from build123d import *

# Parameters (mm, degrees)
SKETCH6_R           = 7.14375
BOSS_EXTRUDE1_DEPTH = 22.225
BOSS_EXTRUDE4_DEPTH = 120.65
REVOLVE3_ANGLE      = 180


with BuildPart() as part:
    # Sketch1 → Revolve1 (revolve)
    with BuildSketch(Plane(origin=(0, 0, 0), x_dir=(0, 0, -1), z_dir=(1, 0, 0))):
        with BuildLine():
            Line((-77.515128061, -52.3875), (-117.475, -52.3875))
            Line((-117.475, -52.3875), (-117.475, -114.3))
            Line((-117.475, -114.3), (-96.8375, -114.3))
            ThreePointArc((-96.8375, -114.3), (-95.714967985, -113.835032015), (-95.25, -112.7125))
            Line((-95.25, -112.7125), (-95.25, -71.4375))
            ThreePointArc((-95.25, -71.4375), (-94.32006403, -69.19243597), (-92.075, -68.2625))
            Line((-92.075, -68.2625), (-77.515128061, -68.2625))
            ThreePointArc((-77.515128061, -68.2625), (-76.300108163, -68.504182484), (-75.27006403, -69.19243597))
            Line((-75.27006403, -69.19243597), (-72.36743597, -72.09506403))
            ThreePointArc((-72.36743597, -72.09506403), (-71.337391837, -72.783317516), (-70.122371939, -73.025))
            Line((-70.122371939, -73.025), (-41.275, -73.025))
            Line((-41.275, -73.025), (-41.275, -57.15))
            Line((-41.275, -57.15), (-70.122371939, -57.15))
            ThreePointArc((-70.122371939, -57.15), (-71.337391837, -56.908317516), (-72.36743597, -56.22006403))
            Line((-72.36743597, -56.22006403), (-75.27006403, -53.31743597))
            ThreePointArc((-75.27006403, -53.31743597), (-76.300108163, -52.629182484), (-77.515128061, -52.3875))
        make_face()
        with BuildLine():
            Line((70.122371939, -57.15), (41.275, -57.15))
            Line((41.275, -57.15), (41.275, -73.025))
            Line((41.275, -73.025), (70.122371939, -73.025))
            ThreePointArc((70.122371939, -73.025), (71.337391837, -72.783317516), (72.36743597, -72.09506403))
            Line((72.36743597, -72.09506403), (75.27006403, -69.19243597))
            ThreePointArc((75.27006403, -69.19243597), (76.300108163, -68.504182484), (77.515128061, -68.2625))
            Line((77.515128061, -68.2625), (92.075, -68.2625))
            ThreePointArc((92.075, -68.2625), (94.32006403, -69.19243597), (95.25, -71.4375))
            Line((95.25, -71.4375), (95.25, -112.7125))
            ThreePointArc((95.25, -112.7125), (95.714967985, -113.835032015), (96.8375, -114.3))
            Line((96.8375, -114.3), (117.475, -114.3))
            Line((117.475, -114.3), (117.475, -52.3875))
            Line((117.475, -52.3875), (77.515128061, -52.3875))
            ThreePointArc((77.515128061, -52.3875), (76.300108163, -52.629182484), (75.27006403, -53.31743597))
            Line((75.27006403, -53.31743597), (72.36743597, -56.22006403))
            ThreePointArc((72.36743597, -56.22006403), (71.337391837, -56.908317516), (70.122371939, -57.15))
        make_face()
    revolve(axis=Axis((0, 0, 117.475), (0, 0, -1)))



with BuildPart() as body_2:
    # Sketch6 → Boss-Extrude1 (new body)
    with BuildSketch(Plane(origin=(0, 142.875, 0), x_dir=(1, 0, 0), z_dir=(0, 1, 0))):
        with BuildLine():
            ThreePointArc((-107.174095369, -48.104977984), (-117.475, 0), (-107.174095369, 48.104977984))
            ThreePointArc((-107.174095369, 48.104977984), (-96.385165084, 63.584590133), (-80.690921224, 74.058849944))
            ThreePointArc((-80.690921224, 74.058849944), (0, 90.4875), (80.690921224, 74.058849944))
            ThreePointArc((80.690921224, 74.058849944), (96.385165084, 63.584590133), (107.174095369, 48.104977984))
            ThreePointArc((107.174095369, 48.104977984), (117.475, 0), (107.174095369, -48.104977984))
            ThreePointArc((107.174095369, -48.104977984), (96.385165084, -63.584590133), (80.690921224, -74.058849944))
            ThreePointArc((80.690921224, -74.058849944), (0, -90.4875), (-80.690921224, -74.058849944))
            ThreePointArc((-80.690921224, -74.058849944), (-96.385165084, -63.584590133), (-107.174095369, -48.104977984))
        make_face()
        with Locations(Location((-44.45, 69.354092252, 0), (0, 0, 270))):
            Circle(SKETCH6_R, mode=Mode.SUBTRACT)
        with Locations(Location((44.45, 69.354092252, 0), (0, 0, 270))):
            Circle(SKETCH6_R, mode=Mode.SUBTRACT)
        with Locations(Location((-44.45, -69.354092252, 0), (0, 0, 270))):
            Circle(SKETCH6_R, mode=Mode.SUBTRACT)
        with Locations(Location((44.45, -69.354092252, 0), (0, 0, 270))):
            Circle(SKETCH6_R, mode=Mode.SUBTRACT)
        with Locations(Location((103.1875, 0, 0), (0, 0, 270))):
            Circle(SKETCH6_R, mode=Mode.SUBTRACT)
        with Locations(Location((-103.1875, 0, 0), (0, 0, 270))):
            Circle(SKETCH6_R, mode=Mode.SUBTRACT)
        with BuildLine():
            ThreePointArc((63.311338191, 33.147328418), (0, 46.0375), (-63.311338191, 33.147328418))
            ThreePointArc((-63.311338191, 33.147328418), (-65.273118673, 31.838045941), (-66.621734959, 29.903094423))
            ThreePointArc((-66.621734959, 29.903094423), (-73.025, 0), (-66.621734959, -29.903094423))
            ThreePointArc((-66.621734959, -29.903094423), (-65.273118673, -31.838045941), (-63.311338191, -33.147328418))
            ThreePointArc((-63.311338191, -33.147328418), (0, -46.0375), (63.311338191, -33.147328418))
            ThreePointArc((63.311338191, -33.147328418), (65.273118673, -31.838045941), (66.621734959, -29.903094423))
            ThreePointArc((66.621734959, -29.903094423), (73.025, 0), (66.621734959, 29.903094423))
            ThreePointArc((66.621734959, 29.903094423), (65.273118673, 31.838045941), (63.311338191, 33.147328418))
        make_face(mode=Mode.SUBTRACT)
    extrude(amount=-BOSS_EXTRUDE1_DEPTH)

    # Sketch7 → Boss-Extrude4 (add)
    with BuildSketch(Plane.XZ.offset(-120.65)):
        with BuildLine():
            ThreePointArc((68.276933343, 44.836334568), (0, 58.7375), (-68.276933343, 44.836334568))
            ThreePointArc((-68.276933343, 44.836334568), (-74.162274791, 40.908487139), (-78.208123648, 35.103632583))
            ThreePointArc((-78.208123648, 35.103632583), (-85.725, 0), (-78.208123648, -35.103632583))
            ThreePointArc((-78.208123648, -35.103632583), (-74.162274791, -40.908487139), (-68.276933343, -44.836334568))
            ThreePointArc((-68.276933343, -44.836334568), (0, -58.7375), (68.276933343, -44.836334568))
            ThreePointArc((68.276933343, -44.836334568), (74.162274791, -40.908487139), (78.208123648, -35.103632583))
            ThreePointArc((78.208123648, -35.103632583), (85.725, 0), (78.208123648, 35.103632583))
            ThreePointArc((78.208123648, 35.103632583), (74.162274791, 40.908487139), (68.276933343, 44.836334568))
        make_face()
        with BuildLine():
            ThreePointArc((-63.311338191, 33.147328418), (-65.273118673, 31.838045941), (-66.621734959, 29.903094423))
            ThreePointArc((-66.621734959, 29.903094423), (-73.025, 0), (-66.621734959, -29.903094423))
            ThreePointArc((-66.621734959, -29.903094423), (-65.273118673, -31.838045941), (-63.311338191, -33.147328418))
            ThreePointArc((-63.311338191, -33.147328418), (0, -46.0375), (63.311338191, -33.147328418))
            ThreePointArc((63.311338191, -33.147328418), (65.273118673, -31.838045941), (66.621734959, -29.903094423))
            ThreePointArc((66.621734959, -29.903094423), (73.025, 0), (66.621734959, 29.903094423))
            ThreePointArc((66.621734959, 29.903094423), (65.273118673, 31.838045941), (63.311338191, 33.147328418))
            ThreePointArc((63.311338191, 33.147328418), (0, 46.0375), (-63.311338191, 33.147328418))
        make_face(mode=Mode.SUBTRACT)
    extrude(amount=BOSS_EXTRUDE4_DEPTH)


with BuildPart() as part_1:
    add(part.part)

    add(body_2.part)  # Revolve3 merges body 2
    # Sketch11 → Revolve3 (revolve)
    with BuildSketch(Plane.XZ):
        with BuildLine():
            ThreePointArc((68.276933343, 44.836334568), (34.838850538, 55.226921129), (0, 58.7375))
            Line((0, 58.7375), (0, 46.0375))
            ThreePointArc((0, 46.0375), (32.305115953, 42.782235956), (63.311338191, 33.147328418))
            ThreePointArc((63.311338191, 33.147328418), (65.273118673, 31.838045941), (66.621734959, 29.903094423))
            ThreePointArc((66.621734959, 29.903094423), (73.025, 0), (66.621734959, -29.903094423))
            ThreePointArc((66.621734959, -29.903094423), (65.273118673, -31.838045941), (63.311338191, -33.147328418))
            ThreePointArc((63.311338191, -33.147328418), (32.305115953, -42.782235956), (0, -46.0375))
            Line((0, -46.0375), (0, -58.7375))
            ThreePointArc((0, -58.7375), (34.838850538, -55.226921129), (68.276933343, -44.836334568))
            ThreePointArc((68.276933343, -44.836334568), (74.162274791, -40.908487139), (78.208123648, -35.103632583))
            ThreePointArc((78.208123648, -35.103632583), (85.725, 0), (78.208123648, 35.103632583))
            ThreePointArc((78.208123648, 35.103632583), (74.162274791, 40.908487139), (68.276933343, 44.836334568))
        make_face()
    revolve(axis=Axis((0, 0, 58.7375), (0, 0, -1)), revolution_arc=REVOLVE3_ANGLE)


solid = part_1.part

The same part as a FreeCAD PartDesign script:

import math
import FreeCAD as App
import Part
import Sketcher
from FreeCAD import Vector
Q = App.Units.Quantity

doc = App.newDocument("Part")
params = doc.addObject("Spreadsheet::Sheet", "Params")
for row, (alias, value) in enumerate([
    ("sketch1_radius", "0.0625 in"),
    ("sketch1_radius2", "0.125 in"),
    ("sketch1_width", "2.4375 in"),
    ("revolution_angle", "360 deg"),
    ("sketch2_radius", "2 in"),
    ("sketch2_radius2", "0.25 in"),
    ("sketch2_diameter", "0.5625 in"),
    ("sketch2_radius3", "4.625 in"),
    ("sketch2_radius4", "8.125 in"),
    ("pad1_length", "0.875 in"),
    ("sketch3_radius", "0.75 in"),
    ("sketch3_radius2", "0.25 in"),
    ("sketch3_radius3", "6.875 in"),
    ("sketch3_radius4", "3.375 in"),
    ("pad2_length", "4.75 in"),
    ("sketch4_radius", "0.25 in"),
    ("sketch4_radius2", "0.75 in"),
    ("sketch4_radius3", "6.875 in"),
    ("sketch4_radius4", "2.875 in"),
    ("revolution2_angle", "180 deg"),
], start=1):
    params.set(f"A{row}", alias)
    params.set(f"B{row}", "=" + value)
    params.setAlias(f"B{row}", alias)

body = doc.addObject("PartDesign::Body", "Body")
body.AllowCompound = True

# Sketch on YZ plane
sketch1 = body.newObject("Sketcher::SketchObject", "Sketch")
sketch1.AttachmentSupport = (doc.getObject("YZ_Plane"), [""])
sketch1.MapMode = "FlatFace"
sketch1.addGeometry([
    Part.LineSegment(Vector(-52.3875, 77.515128, 0), Vector(-52.3875, 117.475, 0)),  # 0
    Part.LineSegment(Vector(-52.3875, 117.475, 0), Vector(-114.3, 117.475, 0)),  # 1
    Part.LineSegment(Vector(-114.3, 117.475, 0), Vector(-114.3, 96.8375, 0)),  # 2
    Part.ArcOfCircle(Part.Circle(Vector(-112.7125, 96.8375, 0), Vector(0, 0, 1), 1.5875), math.radians(180), math.radians(270)),  # 3
    Part.LineSegment(Vector(-112.7125, 95.25, 0), Vector(-71.4375, 95.25, 0)),  # 4
    Part.ArcOfCircle(Part.Circle(Vector(-71.4375, 92.075, 0), Vector(0, 0, 1), 3.175), math.radians(0), math.radians(90)),  # 5
    Part.LineSegment(Vector(-68.2625, 92.075, 0), Vector(-68.2625, 77.515128, 0)),  # 6
    Part.ArcOfCircle(Part.Circle(Vector(-71.4375, 77.515128, 0), Vector(0, 0, 1), 3.175), math.radians(-45), math.radians(0)),  # 7
    Part.LineSegment(Vector(-69.192436, 75.270064, 0), Vector(-72.095064, 72.367436, 0)),  # 8
    Part.ArcOfCircle(Part.Circle(Vector(-69.85, 70.122372, 0), Vector(0, 0, 1), 3.175), math.radians(135), math.radians(180)),  # 9
    Part.LineSegment(Vector(-73.025, 70.122372, 0), Vector(-73.025, 41.275, 0)),  # 10
    Part.LineSegment(Vector(-73.025, 41.275, 0), Vector(-57.15, 41.275, 0)),  # 11
    Part.LineSegment(Vector(-57.15, 41.275, 0), Vector(-57.15, 70.122372, 0)),  # 12
    Part.ArcOfCircle(Part.Circle(Vector(-53.975, 70.122372, 0), Vector(0, 0, 1), 3.175), math.radians(135), math.radians(180)),  # 13
    Part.LineSegment(Vector(-56.220064, 72.367436, 0), Vector(-53.317436, 75.270064, 0)),  # 14
    Part.ArcOfCircle(Part.Circle(Vector(-55.5625, 77.515128, 0), Vector(0, 0, 1), 3.175), math.radians(-45), math.radians(0)),  # 15
    Part.LineSegment(Vector(-57.15, -70.122372, 0), Vector(-57.15, -41.275, 0)),  # 16
    Part.LineSegment(Vector(-57.15, -41.275, 0), Vector(-73.025, -41.275, 0)),  # 17
    Part.LineSegment(Vector(-73.025, -41.275, 0), Vector(-73.025, -70.122372, 0)),  # 18
    Part.ArcOfCircle(Part.Circle(Vector(-69.85, -70.122372, 0), Vector(0, 0, 1), 3.175), math.radians(180), math.radians(225)),  # 19
    Part.LineSegment(Vector(-72.095064, -72.367436, 0), Vector(-69.192436, -75.270064, 0)),  # 20
    Part.ArcOfCircle(Part.Circle(Vector(-71.4375, -77.515128, 0), Vector(0, 0, 1), 3.175), math.radians(0), math.radians(45)),  # 21
    Part.LineSegment(Vector(-68.2625, -77.515128, 0), Vector(-68.2625, -92.075, 0)),  # 22
    Part.ArcOfCircle(Part.Circle(Vector(-71.4375, -92.075, 0), Vector(0, 0, 1), 3.175), math.radians(-90), math.radians(0)),  # 23
    Part.LineSegment(Vector(-71.4375, -95.25, 0), Vector(-112.7125, -95.25, 0)),  # 24
    Part.ArcOfCircle(Part.Circle(Vector(-112.7125, -96.8375, 0), Vector(0, 0, 1), 1.5875), math.radians(90), math.radians(180)),  # 25
    Part.LineSegment(Vector(-114.3, -96.8375, 0), Vector(-114.3, -117.475, 0)),  # 26
    Part.LineSegment(Vector(-114.3, -117.475, 0), Vector(-52.3875, -117.475, 0)),  # 27
    Part.LineSegment(Vector(-52.3875, -117.475, 0), Vector(-52.3875, -77.515128, 0)),  # 28
    Part.ArcOfCircle(Part.Circle(Vector(-55.5625, -77.515128, 0), Vector(0, 0, 1), 3.175), math.radians(0), math.radians(45)),  # 29
    Part.LineSegment(Vector(-53.317436, -75.270064, 0), Vector(-56.220064, -72.367436, 0)),  # 30
    Part.ArcOfCircle(Part.Circle(Vector(-53.975, -70.122372, 0), Vector(0, 0, 1), 3.175), math.radians(180), math.radians(225)),  # 31
], False)
sketch1.addConstraint([
    Sketcher.Constraint("Coincident", 0, 2, 1, 1),
    Sketcher.Constraint("Coincident", 1, 2, 2, 1),
    Sketcher.Constraint("Tangent", 2, 2, 3, 1),
    Sketcher.Constraint("Tangent", 3, 2, 4, 1),
    Sketcher.Constraint("Tangent", 4, 2, 5, 2),
    Sketcher.Constraint("Tangent", 5, 1, 6, 1),
    Sketcher.Constraint("Tangent", 6, 2, 7, 2),
    Sketcher.Constraint("Tangent", 7, 1, 8, 1),
    Sketcher.Constraint("Tangent", 8, 2, 9, 1),
    Sketcher.Constraint("Tangent", 9, 2, 10, 1),
    Sketcher.Constraint("Coincident", 10, 2, 11, 1),
    Sketcher.Constraint("Coincident", 11, 2, 12, 1),
    Sketcher.Constraint("Tangent", 12, 2, 13, 2),
    Sketcher.Constraint("Tangent", 13, 1, 14, 1),
    Sketcher.Constraint("Tangent", 14, 2, 15, 1),
    Sketcher.Constraint("Tangent", 15, 2, 0, 1),
    Sketcher.Constraint("Coincident", 16, 2, 17, 1),
    Sketcher.Constraint("Coincident", 17, 2, 18, 1),
    Sketcher.Constraint("Tangent", 18, 2, 19, 1),
    Sketcher.Constraint("Tangent", 19, 2, 20, 1),
    Sketcher.Constraint("Tangent", 20, 2, 21, 2),
    Sketcher.Constraint("Tangent", 21, 1, 22, 1),
    Sketcher.Constraint("Tangent", 22, 2, 23, 2),
    Sketcher.Constraint("Tangent", 23, 1, 24, 1),
    Sketcher.Constraint("Tangent", 24, 2, 25, 1),
    Sketcher.Constraint("Tangent", 25, 2, 26, 1),
    Sketcher.Constraint("Coincident", 26, 2, 27, 1),
    Sketcher.Constraint("Coincident", 27, 2, 28, 1),
    Sketcher.Constraint("Tangent", 28, 2, 29, 1),
    Sketcher.Constraint("Tangent", 29, 2, 30, 1),
    Sketcher.Constraint("Tangent", 30, 2, 31, 2),
    Sketcher.Constraint("Tangent", 31, 1, 16, 1),
    Sketcher.Constraint("Vertical", 0),
    Sketcher.Constraint("Horizontal", 1),
    Sketcher.Constraint("Vertical", 2),
    Sketcher.Constraint("Horizontal", 4),
    Sketcher.Constraint("Vertical", 6),
    Sketcher.Constraint("Vertical", 10),
    Sketcher.Constraint("Horizontal", 11),
    Sketcher.Constraint("Vertical", 12),
    Sketcher.Constraint("Vertical", 16),
    Sketcher.Constraint("Horizontal", 17),
    Sketcher.Constraint("Vertical", 18),
    Sketcher.Constraint("Vertical", 22),
    Sketcher.Constraint("Horizontal", 24),
    Sketcher.Constraint("Vertical", 26),
    Sketcher.Constraint("Horizontal", 27),
    Sketcher.Constraint("Vertical", 28),
    Sketcher.Constraint("Equal", 5, 7),
    Sketcher.Constraint("Equal", 7, 9),
    Sketcher.Constraint("Equal", 9, 13),
    Sketcher.Constraint("Equal", 13, 15),
    Sketcher.Constraint("Equal", 15, 19),
    Sketcher.Constraint("Equal", 19, 21),
    Sketcher.Constraint("Equal", 21, 23),
    Sketcher.Constraint("Equal", 3, 25),
    Sketcher.Constraint("Equal", 23, 29),
    Sketcher.Constraint("Equal", 29, 31),
    Sketcher.Constraint("Symmetric", 9, 3, 19, 3, -1),
    Sketcher.Constraint("Symmetric", 7, 3, 21, 3, -1),
    Sketcher.Constraint("Symmetric", 3, 3, 25, 3, -1),
    Sketcher.Constraint("Symmetric", 15, 3, 29, 3, -1),
    Sketcher.Constraint("Symmetric", 13, 3, 31, 3, -1),
    Sketcher.Constraint("Parallel", 8, 14),
    Sketcher.Constraint("Perpendicular", 14, 20),
    Sketcher.Constraint("Horizontal", 9, 3, 13, 3),
    Sketcher.Constraint("Horizontal", 7, 3, 15, 3),
    Sketcher.Constraint("Equal", 12, 16),
    Sketcher.Constraint("Equal", 2, 26),
    Sketcher.Constraint("Radius", 3, Q("0.0625 in")),
    Sketcher.Constraint("Radius", 5, Q("0.125 in")),
    Sketcher.Constraint("DistanceY", 5, 3, 0, 2, Q("1 in")),
    Sketcher.Constraint("DistanceY", 23, 3, 16, 2, Q("2 in")),
    Sketcher.Constraint("DistanceX", 1, 2, -1, 1, Q("4.5 in")),
    Sketcher.Constraint("DistanceX", 5, 1, 15, 3, Q("0.5 in")),
    Sketcher.Constraint("DistanceX", 1, 2, 1, 1, Q("2.4375 in")),
    Sketcher.Constraint("DistanceX", 9, 3, -1, 1, Q("2.75 in")),
    Sketcher.Constraint("DistanceY", -1, 1, 3, 2, Q("3.75 in")),
    Sketcher.Constraint("DistanceY", 19, 3, 7, 3, Q("5.8125 in")),
])
sketch1.setExpression("Constraints[69]", "Params.sketch1_radius")
sketch1.setExpression("Constraints[70]", "Params.sketch1_radius2")
sketch1.setExpression("Constraints[75]", "Params.sketch1_width")
revolution = body.newObject("PartDesign::Revolution", "Revolution")
revolution.Profile = sketch1
revolution.ReferenceAxis = (sketch1, ["V_Axis"])
revolution.setExpression("Angle", "Params.revolution_angle")
body2 = doc.addObject("PartDesign::Body", "Body001")

# Sketch on XZ plane
sketch2 = body2.newObject("Sketcher::SketchObject", "Sketch001")
sketch2.AttachmentSupport = (doc.getObject("XZ_Plane001"), [""])
sketch2.MapMode = "FlatFace"
sketch2.AttachmentOffset = App.Placement(Vector(0, 0, -5.625 * 25.4), App.Rotation())
sketch2.addGeometry([
    Part.ArcOfCircle(Part.Circle(Vector(0, 0, 0), Vector(0, 0, 1), 117.475), math.radians(155.827124), math.radians(204.172876)),  # 0
    Part.ArcOfCircle(Part.Circle(Vector(-60.828541, 27.302825, 0), Vector(0, 0, 1), 50.8), math.radians(113.016223), math.radians(155.827124)),  # 1
    Part.ArcOfCircle(Part.Circle(Vector(0, -115.8875, 0), Vector(0, 0, 1), 206.375), math.radians(66.983777), math.radians(113.016223)),  # 2
    Part.ArcOfCircle(Part.Circle(Vector(60.828541, 27.302825, 0), Vector(0, 0, 1), 50.8), math.radians(24.172876), math.radians(66.983777)),  # 3
    Part.ArcOfCircle(Part.Circle(Vector(0, 0, 0), Vector(0, 0, 1), 117.475), math.radians(-24.172876), math.radians(24.172876)),  # 4
    Part.ArcOfCircle(Part.Circle(Vector(60.828541, -27.302825, 0), Vector(0, 0, 1), 50.8), math.radians(-66.983777), math.radians(-24.172876)),  # 5
    Part.ArcOfCircle(Part.Circle(Vector(0, 115.8875, 0), Vector(0, 0, 1), 206.375), math.radians(-113.016223), math.radians(-66.983777)),  # 6
    Part.ArcOfCircle(Part.Circle(Vector(-60.828541, -27.302825, 0), Vector(0, 0, 1), 50.8), math.radians(-155.827124), math.radians(-113.016223)),  # 7
    Part.Circle(Vector(44.45, 69.354092, 0), Vector(0, 0, 1), 7.14375),  # 8
    Part.Circle(Vector(-44.45, 69.354092, 0), Vector(0, 0, 1), 7.14375),  # 9
    Part.Circle(Vector(103.1875, 0, 0), Vector(0, 0, 1), 7.14375),  # 10
    Part.Circle(Vector(44.45, -69.354092, 0), Vector(0, 0, 1), 7.14375),  # 11
    Part.ArcOfCircle(Part.Circle(Vector(60.828541, -27.302825, 0), Vector(0, 0, 1), 6.35), math.radians(-66.983777), math.radians(-24.172876)),  # 12
    Part.ArcOfCircle(Part.Circle(Vector(0, 0, 0), Vector(0, 0, 1), 73.025), math.radians(-24.172876), math.radians(24.172876)),  # 13
    Part.ArcOfCircle(Part.Circle(Vector(60.828541, 27.302825, 0), Vector(0, 0, 1), 6.35), math.radians(24.172876), math.radians(66.983777)),  # 14
    Part.ArcOfCircle(Part.Circle(Vector(0, -115.8875, 0), Vector(0, 0, 1), 161.925), math.radians(66.983777), math.radians(113.016223)),  # 15
    Part.ArcOfCircle(Part.Circle(Vector(-60.828541, 27.302825, 0), Vector(0, 0, 1), 6.35), math.radians(113.016223), math.radians(155.827124)),  # 16
    Part.ArcOfCircle(Part.Circle(Vector(0, 0, 0), Vector(0, 0, 1), 73.025), math.radians(155.827124), math.radians(204.172876)),  # 17
    Part.ArcOfCircle(Part.Circle(Vector(-60.828541, -27.302825, 0), Vector(0, 0, 1), 6.35), math.radians(-155.827124), math.radians(-113.016223)),  # 18
    Part.ArcOfCircle(Part.Circle(Vector(0, 115.8875, 0), Vector(0, 0, 1), 161.925), math.radians(-113.016223), math.radians(-66.983777)),  # 19
    Part.Circle(Vector(-103.1875, 0, 0), Vector(0, 0, 1), 7.14375),  # 20
    Part.Circle(Vector(-44.45, -69.354092, 0), Vector(0, 0, 1), 7.14375),  # 21
], False)
sketch2.addConstraint([
    Sketcher.Constraint("Tangent", 0, 1, 1, 2),
    Sketcher.Constraint("Tangent", 1, 1, 2, 2),
    Sketcher.Constraint("Tangent", 2, 1, 3, 2),
    Sketcher.Constraint("Tangent", 3, 1, 4, 2),
    Sketcher.Constraint("Tangent", 4, 1, 5, 2),
    Sketcher.Constraint("Tangent", 5, 1, 6, 2),
    Sketcher.Constraint("Tangent", 6, 1, 7, 2),
    Sketcher.Constraint("Tangent", 7, 1, 0, 2),
    Sketcher.Constraint("Tangent", 12, 2, 13, 1),
    Sketcher.Constraint("Tangent", 13, 2, 14, 1),
    Sketcher.Constraint("Tangent", 14, 2, 15, 1),
    Sketcher.Constraint("Tangent", 15, 2, 16, 1),
    Sketcher.Constraint("Tangent", 16, 2, 17, 1),
    Sketcher.Constraint("Tangent", 17, 2, 18, 1),
    Sketcher.Constraint("Tangent", 18, 2, 19, 1),
    Sketcher.Constraint("Tangent", 19, 2, 12, 1),
    Sketcher.Constraint("Coincident", 0, 3, -1, 1),
    Sketcher.Constraint("Coincident", 4, 3, -1, 1),
    Sketcher.Constraint("Coincident", 13, 3, -1, 1),
    Sketcher.Constraint("Coincident", 17, 3, -1, 1),
    Sketcher.Constraint("Coincident", 12, 3, 5, 3),
    Sketcher.Constraint("Coincident", 14, 3, 3, 3),
    Sketcher.Constraint("Coincident", 15, 3, 2, 3),
    Sketcher.Constraint("Coincident", 16, 3, 1, 3),
    Sketcher.Constraint("Coincident", 18, 3, 7, 3),
    Sketcher.Constraint("Equal", 1, 3),
    Sketcher.Constraint("Equal", 0, 4),
    Sketcher.Constraint("Equal", 3, 5),
    Sketcher.Constraint("Equal", 2, 6),
    Sketcher.Constraint("Equal", 5, 7),
    Sketcher.Constraint("Equal", 8, 9),
    Sketcher.Constraint("Equal", 9, 10),
    Sketcher.Constraint("Equal", 10, 11),
    Sketcher.Constraint("Equal", 15, 19),
    Sketcher.Constraint("Equal", 11, 20),
    Sketcher.Constraint("Equal", 20, 21),
    Sketcher.Constraint("Symmetric", 2, 3, 6, 3, -1, 1),
    Sketcher.Constraint("Symmetric", 9, 3, 11, 3, -1, 1),
    Sketcher.Constraint("Symmetric", 10, 3, 20, 3, -1, 1),
    Sketcher.Constraint("Symmetric", 8, 3, 21, 3, -1, 1),
    Sketcher.Constraint("Symmetric", 8, 3, 9, 3, -2),
    Sketcher.Constraint("PointOnObject", 2, 3, -2),
    Sketcher.Constraint("PointOnObject", 10, 3, -1),
    Sketcher.Constraint("Radius", 1, Q("2 in")),
    Sketcher.Constraint("Radius", 12, Q("0.25 in")),
    Sketcher.Constraint("Diameter", 8, Q("0.5625 in")),
    Sketcher.Constraint("Radius", 0, Q("4.625 in")),
    Sketcher.Constraint("Radius", 2, Q("8.125 in")),
    Sketcher.Constraint("DistanceX", 9, 3, 8, 3, Q("3.5 in")),
    Sketcher.Constraint("DistanceY", 2, 3, -1, 1, Q("4.5625 in")),
    Sketcher.Constraint("DistanceX", -1, 1, 10, 3, Q("4.0625 in")),
    Sketcher.Constraint("DistanceY", -1, 1, 8, 3, 69.354092),
])
sketch2.setExpression("Constraints[43]", "Params.sketch2_radius")
sketch2.setExpression("Constraints[44]", "Params.sketch2_radius2")
sketch2.setExpression("Constraints[45]", "Params.sketch2_diameter")
sketch2.setExpression("Constraints[46]", "Params.sketch2_radius3")
sketch2.setExpression("Constraints[47]", "Params.sketch2_radius4")
pad1 = body2.newObject("PartDesign::Pad", "Pad")
pad1.Profile = sketch2
pad1.setExpression("Length", "Params.pad1_length")

# Sketch on XZ plane
sketch3 = body2.newObject("Sketcher::SketchObject", "Sketch002")
sketch3.AttachmentSupport = (doc.getObject("XZ_Plane001"), [""])
sketch3.MapMode = "FlatFace"
sketch3.AttachmentOffset = App.Placement(Vector(0, 0, -4.75 * 25.4), App.Rotation())
sketch3.addGeometry([
    Part.ArcOfCircle(Part.Circle(Vector(0, -115.8875, 0), Vector(0, 0, 1), 174.625), math.radians(66.983777), math.radians(113.016223)),  # 0
    Part.ArcOfCircle(Part.Circle(Vector(-60.828541, 27.302825, 0), Vector(0, 0, 1), 19.05), math.radians(113.016223), math.radians(155.827124)),  # 1
    Part.ArcOfCircle(Part.Circle(Vector(0, 0, 0), Vector(0, 0, 1), 85.725), math.radians(155.827124), math.radians(204.172876)),  # 2
    Part.ArcOfCircle(Part.Circle(Vector(-60.828541, -27.302825, 0), Vector(0, 0, 1), 19.05), math.radians(-155.827124), math.radians(-113.016223)),  # 3
    Part.ArcOfCircle(Part.Circle(Vector(0, 115.8875, 0), Vector(0, 0, 1), 174.625), math.radians(-113.016223), math.radians(-66.983777)),  # 4
    Part.ArcOfCircle(Part.Circle(Vector(60.828541, -27.302825, 0), Vector(0, 0, 1), 19.05), math.radians(-66.983777), math.radians(-24.172876)),  # 5
    Part.ArcOfCircle(Part.Circle(Vector(0, 0, 0), Vector(0, 0, 1), 85.725), math.radians(-24.172876), math.radians(24.172876)),  # 6
    Part.ArcOfCircle(Part.Circle(Vector(60.828541, 27.302825, 0), Vector(0, 0, 1), 19.05), math.radians(24.172876), math.radians(66.983777)),  # 7
    Part.ArcOfCircle(Part.Circle(Vector(-60.828541, 27.302825, 0), Vector(0, 0, 1), 6.35), math.radians(113.016223), math.radians(155.827124)),  # 8
    Part.ArcOfCircle(Part.Circle(Vector(0, -115.8875, 0), Vector(0, 0, 1), 161.925), math.radians(66.983777), math.radians(113.016223)),  # 9
    Part.ArcOfCircle(Part.Circle(Vector(60.828541, 27.302825, 0), Vector(0, 0, 1), 6.35), math.radians(24.172876), math.radians(66.983777)),  # 10
    Part.ArcOfCircle(Part.Circle(Vector(0, 0, 0), Vector(0, 0, 1), 73.025), math.radians(-24.172876), math.radians(24.172876)),  # 11
    Part.ArcOfCircle(Part.Circle(Vector(60.828541, -27.302825, 0), Vector(0, 0, 1), 6.35), math.radians(-66.983777), math.radians(-24.172876)),  # 12
    Part.ArcOfCircle(Part.Circle(Vector(0, 115.8875, 0), Vector(0, 0, 1), 161.925), math.radians(-113.016223), math.radians(-66.983777)),  # 13
    Part.ArcOfCircle(Part.Circle(Vector(-60.828541, -27.302825, 0), Vector(0, 0, 1), 6.35), math.radians(-155.827124), math.radians(-113.016223)),  # 14
    Part.ArcOfCircle(Part.Circle(Vector(0, 0, 0), Vector(0, 0, 1), 73.025), math.radians(155.827124), math.radians(204.172876)),  # 15
], False)
sketch3.addConstraint([
    Sketcher.Constraint("Tangent", 0, 2, 1, 1),
    Sketcher.Constraint("Tangent", 1, 2, 2, 1),
    Sketcher.Constraint("Tangent", 2, 2, 3, 1),
    Sketcher.Constraint("Tangent", 3, 2, 4, 1),
    Sketcher.Constraint("Tangent", 4, 2, 5, 1),
    Sketcher.Constraint("Tangent", 5, 2, 6, 1),
    Sketcher.Constraint("Tangent", 6, 2, 7, 1),
    Sketcher.Constraint("Tangent", 7, 2, 0, 1),
    Sketcher.Constraint("Tangent", 8, 1, 9, 2),
    Sketcher.Constraint("Tangent", 9, 1, 10, 2),
    Sketcher.Constraint("Tangent", 10, 1, 11, 2),
    Sketcher.Constraint("Tangent", 11, 1, 12, 2),
    Sketcher.Constraint("Tangent", 12, 1, 13, 2),
    Sketcher.Constraint("Tangent", 13, 1, 14, 2),
    Sketcher.Constraint("Tangent", 14, 1, 15, 2),
    Sketcher.Constraint("Tangent", 15, 1, 8, 2),
    Sketcher.Constraint("Coincident", 2, 3, -1, 1),
    Sketcher.Constraint("Coincident", 6, 3, -1, 1),
    Sketcher.Constraint("Coincident", 11, 3, -1, 1),
    Sketcher.Constraint("Coincident", 15, 3, -1, 1),
    Sketcher.Constraint("Coincident", 8, 3, 1, 3),
    Sketcher.Constraint("Coincident", 9, 3, 0, 3),
    Sketcher.Constraint("Coincident", 10, 3, 7, 3),
    Sketcher.Constraint("Coincident", 12, 3, 5, 3),
    Sketcher.Constraint("Coincident", 13, 3, 4, 3),
    Sketcher.Constraint("Equal", 1, 3),
    Sketcher.Constraint("Equal", 0, 4),
    Sketcher.Constraint("Equal", 3, 5),
    Sketcher.Constraint("Equal", 2, 6),
    Sketcher.Constraint("Equal", 5, 7),
    Sketcher.Constraint("Equal", 12, 14),
    Sketcher.Constraint("Symmetric", 0, 3, 4, 3, -1, 1),
    Sketcher.Constraint("PointOnObject", 0, 3, -2),
    Sketcher.Constraint("Radius", 1, Q("0.75 in")),
    Sketcher.Constraint("Radius", 8, Q("0.25 in")),
    Sketcher.Constraint("Radius", 0, Q("6.875 in")),
    Sketcher.Constraint("Radius", 2, Q("3.375 in")),
    Sketcher.Constraint("DistanceY", 0, 3, -1, 1, Q("4.5625 in")),
])
sketch3.setExpression("Constraints[33]", "Params.sketch3_radius")
sketch3.setExpression("Constraints[34]", "Params.sketch3_radius2")
sketch3.setExpression("Constraints[35]", "Params.sketch3_radius3")
sketch3.setExpression("Constraints[36]", "Params.sketch3_radius4")
pad2 = body2.newObject("PartDesign::Pad", "Pad001")
pad2.Profile = sketch3
pad2.setExpression("Length", "Params.pad2_length")
doc.recompute()

boolean = body.newObject("PartDesign::Boolean", "Boolean")
boolean.Type = "Fuse"
boolean.addObjects([body2])

# Sketch on XZ plane
sketch4 = body.newObject("Sketcher::SketchObject", "Sketch003")
sketch4.AttachmentSupport = (doc.getObject("XZ_Plane"), [""])
sketch4.MapMode = "FlatFace"
sketch4.addGeometry([
    Part.ArcOfCircle(Part.Circle(Vector(0, -115.8875, 0), Vector(0, 0, 1), 174.625), math.radians(66.983777), math.radians(90)),  # 0
    Part.LineSegment(Vector(0, 58.7375, 0), Vector(0, 46.0375, 0)),  # 1
    Part.ArcOfCircle(Part.Circle(Vector(0, -115.8875, 0), Vector(0, 0, 1), 161.925), math.radians(66.983777), math.radians(90)),  # 2
    Part.ArcOfCircle(Part.Circle(Vector(60.828541, 27.302825, 0), Vector(0, 0, 1), 6.35), math.radians(24.172876), math.radians(66.983777)),  # 3
    Part.ArcOfCircle(Part.Circle(Vector(0, 0, 0), Vector(0, 0, 1), 73.025), math.radians(-24.172876), math.radians(24.172876)),  # 4
    Part.ArcOfCircle(Part.Circle(Vector(60.828541, -27.302825, 0), Vector(0, 0, 1), 6.35), math.radians(-66.983777), math.radians(-24.172876)),  # 5
    Part.ArcOfCircle(Part.Circle(Vector(0, 115.8875, 0), Vector(0, 0, 1), 161.925), math.radians(-90), math.radians(-66.983777)),  # 6
    Part.LineSegment(Vector(0, -46.0375, 0), Vector(0, -58.7375, 0)),  # 7
    Part.ArcOfCircle(Part.Circle(Vector(0, 115.8875, 0), Vector(0, 0, 1), 174.625), math.radians(-90), math.radians(-66.983777)),  # 8
    Part.ArcOfCircle(Part.Circle(Vector(60.828541, -27.302825, 0), Vector(0, 0, 1), 19.05), math.radians(-66.983777), math.radians(-24.172876)),  # 9
    Part.ArcOfCircle(Part.Circle(Vector(0, 0, 0), Vector(0, 0, 1), 85.725), math.radians(-24.172876), math.radians(24.172876)),  # 10
    Part.ArcOfCircle(Part.Circle(Vector(60.828541, 27.302825, 0), Vector(0, 0, 1), 19.05), math.radians(24.172876), math.radians(66.983777)),  # 11
], False)
sketch4.addConstraint([
    Sketcher.Constraint("Coincident", 0, 2, 1, 1),
    Sketcher.Constraint("Coincident", 1, 2, 2, 2),
    Sketcher.Constraint("Tangent", 2, 1, 3, 2),
    Sketcher.Constraint("Tangent", 3, 1, 4, 2),
    Sketcher.Constraint("Tangent", 4, 1, 5, 2),
    Sketcher.Constraint("Tangent", 5, 1, 6, 2),
    Sketcher.Constraint("Coincident", 6, 1, 7, 1),
    Sketcher.Constraint("Coincident", 7, 2, 8, 1),
    Sketcher.Constraint("Tangent", 8, 2, 9, 1),
    Sketcher.Constraint("Tangent", 9, 2, 10, 1),
    Sketcher.Constraint("Tangent", 10, 2, 11, 1),
    Sketcher.Constraint("Tangent", 11, 2, 0, 1),
    Sketcher.Constraint("Vertical", 1),
    Sketcher.Constraint("Vertical", 7),
    Sketcher.Constraint("Coincident", 4, 3, -1, 1),
    Sketcher.Constraint("Coincident", 10, 3, -1, 1),
    Sketcher.Constraint("Coincident", 2, 3, 0, 3),
    Sketcher.Constraint("Coincident", 8, 3, 6, 3),
    Sketcher.Constraint("Coincident", 9, 3, 5, 3),
    Sketcher.Constraint("Coincident", 11, 3, 3, 3),
    Sketcher.Constraint("Equal", 3, 5),
    Sketcher.Constraint("Equal", 2, 6),
    Sketcher.Constraint("Symmetric", 0, 3, 6, 3, -1, 1),
    Sketcher.Constraint("PointOnObject", 0, 3, -2),
    Sketcher.Constraint("PointOnObject", 0, 2, -2),
    Sketcher.Constraint("PointOnObject", 6, 1, -2),
    Sketcher.Constraint("Radius", 3, Q("0.25 in")),
    Sketcher.Constraint("Radius", 9, Q("0.75 in")),
    Sketcher.Constraint("Radius", 0, Q("6.875 in")),
    Sketcher.Constraint("Radius", 4, Q("2.875 in")),
    Sketcher.Constraint("DistanceY", 0, 2, 8, 3, Q("2.25 in")),
])
sketch4.setExpression("Constraints[26]", "Params.sketch4_radius")
sketch4.setExpression("Constraints[27]", "Params.sketch4_radius2")
sketch4.setExpression("Constraints[28]", "Params.sketch4_radius3")
sketch4.setExpression("Constraints[29]", "Params.sketch4_radius4")
revolution2 = body.newObject("PartDesign::Revolution", "Revolution001")
revolution2.Profile = sketch4
revolution2.ReferenceAxis = (sketch4, ["V_Axis"])
revolution2.setExpression("Angle", "Params.revolution2_angle")
revolution2.Reversed = True

doc.recompute()
